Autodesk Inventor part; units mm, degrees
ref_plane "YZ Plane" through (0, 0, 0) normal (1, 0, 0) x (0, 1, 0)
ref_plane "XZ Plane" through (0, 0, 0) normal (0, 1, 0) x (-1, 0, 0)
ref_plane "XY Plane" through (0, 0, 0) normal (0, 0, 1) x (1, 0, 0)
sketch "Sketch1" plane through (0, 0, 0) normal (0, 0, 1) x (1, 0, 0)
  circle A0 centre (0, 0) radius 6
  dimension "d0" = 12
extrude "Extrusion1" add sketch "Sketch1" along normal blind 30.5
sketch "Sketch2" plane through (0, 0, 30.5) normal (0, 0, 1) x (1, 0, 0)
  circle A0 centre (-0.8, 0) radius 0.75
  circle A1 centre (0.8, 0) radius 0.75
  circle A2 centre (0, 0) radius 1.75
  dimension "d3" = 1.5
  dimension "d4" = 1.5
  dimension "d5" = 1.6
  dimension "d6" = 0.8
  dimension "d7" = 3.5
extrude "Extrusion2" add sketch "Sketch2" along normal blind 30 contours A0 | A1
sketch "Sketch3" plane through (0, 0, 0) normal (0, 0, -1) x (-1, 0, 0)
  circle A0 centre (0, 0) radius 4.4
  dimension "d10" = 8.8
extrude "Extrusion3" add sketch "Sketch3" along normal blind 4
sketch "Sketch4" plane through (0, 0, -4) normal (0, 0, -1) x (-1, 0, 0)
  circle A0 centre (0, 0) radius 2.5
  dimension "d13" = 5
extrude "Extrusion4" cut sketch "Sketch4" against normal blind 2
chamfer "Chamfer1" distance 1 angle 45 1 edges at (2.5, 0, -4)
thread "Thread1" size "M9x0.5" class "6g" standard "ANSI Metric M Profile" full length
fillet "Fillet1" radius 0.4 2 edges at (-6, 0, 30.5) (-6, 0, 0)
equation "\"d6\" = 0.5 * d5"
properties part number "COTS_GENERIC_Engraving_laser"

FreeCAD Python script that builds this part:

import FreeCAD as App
import Part
import Sketcher

V = App.Vector


def edges_at(feature, points):
    """Names of the edges that pass closest to the given points."""
    edges = feature.Shape.Edges
    near = lambda p: min(range(len(edges)), key=lambda i: edges[i].distToShape(Part.Vertex(*p))[0])
    return sorted({f"Edge{near(p) + 1}" for p in points})

doc = App.newDocument("Part")
body = doc.addObject("PartDesign::Body", "Body")

# Sketch on XY plane
sketch1 = body.newObject("Sketcher::SketchObject", "Sketch")
sketch1.AttachmentSupport = (doc.getObject("XY_Plane"), [""])
sketch1.MapMode = "FlatFace"
sketch1.addGeometry(Part.Circle(V(0, 0, 0), V(0, 0, 1), 6), False)
sketch1.addConstraint([
    Sketcher.Constraint("Coincident", 0, 3, -1, 1),
    Sketcher.Constraint("Diameter", 0, 12.0),
])
pad1 = body.newObject("PartDesign::Pad", "Pad")
pad1.Profile = sketch1
pad1.Length = 30.5

# Sketch on XY plane
sketch2 = body.newObject("Sketcher::SketchObject", "Sketch001")
sketch2.AttachmentSupport = (doc.getObject("XY_Plane"), [""])
sketch2.MapMode = "FlatFace"
sketch2.AttachmentOffset = App.Placement(V(0, 0, 30.5), App.Rotation())
sketch2.addGeometry([
    Part.Circle(V(-0.8, 0, 0), V(0, 0, 1), 0.8),
    Part.Circle(V(0.8, 0, 0), V(0, 0, 1), 0.8),
], False)
sketch2.addConstraint([
    Sketcher.Constraint("Equal", 0, 1),
    Sketcher.Constraint("Symmetric", 0, 3, 1, 3, -1, 1),
    Sketcher.Constraint("PointOnObject", 0, 3, -1),
    Sketcher.Constraint("Diameter", 0, 1.5),
    Sketcher.Constraint("DistanceX", 0, 3, -1, 1, 0.8),
])
pad2 = body.newObject("PartDesign::Pad", "Pad001")
pad2.Profile = sketch2
pad2.Length = 30

# Sketch on XY plane
sketch3 = body.newObject("Sketcher::SketchObject", "Sketch002")
sketch3.AttachmentSupport = (doc.getObject("XY_Plane"), [""])
sketch3.MapMode = "FlatFace"
sketch3.addGeometry(Part.Circle(V(0, 0, 0), V(0, 0, 1), 4.4), False)
sketch3.addConstraint([
    Sketcher.Constraint("Coincident", 0, 3, -1, 1),
    Sketcher.Constraint("Diameter", 0, 8.8),
])
pad3 = body.newObject("PartDesign::Pad", "Pad002")
pad3.Profile = sketch3
pad3.Length = 4
pad3.Reversed = True

# Sketch on XY plane
sketch4 = body.newObject("Sketcher::SketchObject", "Sketch003")
sketch4.AttachmentSupport = (doc.getObject("XY_Plane"), [""])
sketch4.MapMode = "FlatFace"
sketch4.AttachmentOffset = App.Placement(V(0, 0, -4), App.Rotation())
sketch4.addGeometry(Part.Circle(V(0, 0, 0), V(0, 0, 1), 2.5), False)
sketch4.addConstraint([
    Sketcher.Constraint("Coincident", 0, 3, -1, 1),
    Sketcher.Constraint("Diameter", 0, 5.0),
])
pocket1 = body.newObject("PartDesign::Pocket", "Pocket")
pocket1.Profile = sketch4
pocket1.Length = 2
pocket1.Reversed = True
doc.recompute()

chamfer = body.newObject("PartDesign::Chamfer", "Chamfer")
chamfer.Base = (pocket1, edges_at(pocket1, [(2.5, 0, -4)]))
chamfer.Size = 1
doc.recompute()

fillet = body.newObject("PartDesign::Fillet", "Fillet")
fillet.Base = (chamfer, edges_at(chamfer, [(-6, 0, 30.5), (-6, 0, 0)]))
fillet.Radius = 0.4

doc.recompute()
